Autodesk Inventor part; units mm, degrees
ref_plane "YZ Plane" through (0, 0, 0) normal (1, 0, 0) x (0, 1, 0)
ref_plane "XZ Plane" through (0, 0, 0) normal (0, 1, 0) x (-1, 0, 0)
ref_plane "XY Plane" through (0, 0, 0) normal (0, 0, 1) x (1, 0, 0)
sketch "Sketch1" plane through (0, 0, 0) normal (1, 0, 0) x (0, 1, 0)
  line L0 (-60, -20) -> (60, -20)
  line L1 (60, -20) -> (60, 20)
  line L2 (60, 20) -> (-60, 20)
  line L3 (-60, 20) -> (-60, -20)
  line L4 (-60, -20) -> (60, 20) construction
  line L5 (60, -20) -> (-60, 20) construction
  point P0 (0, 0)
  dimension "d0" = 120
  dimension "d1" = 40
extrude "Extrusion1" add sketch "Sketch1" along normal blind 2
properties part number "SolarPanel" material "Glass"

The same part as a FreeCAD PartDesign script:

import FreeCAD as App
import Part
import Sketcher
from FreeCAD import Vector

doc = App.newDocument("Part")
body = doc.addObject("PartDesign::Body", "Body")

sketch1 = body.newObject("Sketcher::SketchObject", "Sketch")
sketch1.AttachmentSupport = (doc.getObject("YZ_Plane"), [""])
sketch1.MapMode = "FlatFace"
sketch1.addGeometry(Part.LineSegment(Vector(-60, 20, 0), Vector(-60, -20, 0)), False)
sketch1.addGeometry(Part.LineSegment(Vector(-60, -20, 0), Vector(60, -20, 0)), False)
sketch1.addGeometry(Part.LineSegment(Vector(60, -20, 0), Vector(60, 20, 0)), False)
sketch1.addGeometry(Part.LineSegment(Vector(60, 20, 0), Vector(-60, 20, 0)), False)
sketch1.addConstraint(Sketcher.Constraint("Coincident", 0, 2, 1, 1))
sketch1.addConstraint(Sketcher.Constraint("Coincident", 1, 2, 2, 1))
sketch1.addConstraint(Sketcher.Constraint("Coincident", 2, 2, 3, 1))
sketch1.addConstraint(Sketcher.Constraint("Coincident", 3, 2, 0, 1))
sketch1.addConstraint(Sketcher.Constraint("Vertical", 0))
sketch1.addConstraint(Sketcher.Constraint("Horizontal", 1))
sketch1.addConstraint(Sketcher.Constraint("Vertical", 2))
sketch1.addConstraint(Sketcher.Constraint("Horizontal", 3))
sketch1.addConstraint(Sketcher.Constraint("Symmetric", 0, 2, 2, 2, -1, 1))
sketch1.addConstraint(Sketcher.Constraint("DistanceX", 1, 1, 1, 2, 120.0))
sketch1.addConstraint(Sketcher.Constraint("DistanceY", 0, 2, 0, 1, 40.0))
pad1 = body.newObject("PartDesign::Pad", "Pad")
pad1.Profile = sketch1
pad1.Length = 2

doc.recompute()
